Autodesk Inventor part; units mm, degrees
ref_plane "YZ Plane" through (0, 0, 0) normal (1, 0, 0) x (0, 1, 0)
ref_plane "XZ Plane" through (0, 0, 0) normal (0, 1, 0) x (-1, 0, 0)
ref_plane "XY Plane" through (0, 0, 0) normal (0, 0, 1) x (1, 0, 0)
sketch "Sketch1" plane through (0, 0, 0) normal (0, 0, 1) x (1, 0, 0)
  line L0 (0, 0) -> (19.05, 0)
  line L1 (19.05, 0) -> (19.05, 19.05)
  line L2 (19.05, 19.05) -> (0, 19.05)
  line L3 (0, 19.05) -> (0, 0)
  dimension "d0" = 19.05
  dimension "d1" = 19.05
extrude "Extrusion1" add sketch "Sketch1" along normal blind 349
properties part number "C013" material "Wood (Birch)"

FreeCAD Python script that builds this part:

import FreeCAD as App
import Part
import Sketcher
from FreeCAD import Vector

doc = App.newDocument("Part")
body = doc.addObject("PartDesign::Body", "Body")

sketch1 = body.newObject("Sketcher::SketchObject", "Sketch")
sketch1.AttachmentSupport = (doc.getObject("XY_Plane"), [""])
sketch1.MapMode = "FlatFace"
sketch1.addGeometry([
    Part.LineSegment(Vector(0, 19.05, 0), Vector(0, 0, 0)),
    Part.LineSegment(Vector(0, 0, 0), Vector(19.05, 0, 0)),
    Part.LineSegment(Vector(19.05, 0, 0), Vector(19.05, 19.05, 0)),
    Part.LineSegment(Vector(19.05, 19.05, 0), Vector(0, 19.05, 0)),
], False)
sketch1.addConstraint([
    Sketcher.Constraint("Coincident", 0, 2, 1, 1),
    Sketcher.Constraint("Coincident", 1, 2, 2, 1),
    Sketcher.Constraint("Coincident", 2, 2, 3, 1),
    Sketcher.Constraint("Coincident", 3, 2, 0, 1),
    Sketcher.Constraint("Vertical", 0),
    Sketcher.Constraint("Horizontal", 1),
    Sketcher.Constraint("Vertical", 2),
    Sketcher.Constraint("Horizontal", 3),
    Sketcher.Constraint("Coincident", 0, 2, -1, 1),
    Sketcher.Constraint("Equal", 3, 0),
    Sketcher.Constraint("DistanceX", 1, 1, 1, 2, 19.05),
])
pad1 = body.newObject("PartDesign::Pad", "Pad")
pad1.Profile = sketch1
pad1.Length = 349

doc.recompute()
